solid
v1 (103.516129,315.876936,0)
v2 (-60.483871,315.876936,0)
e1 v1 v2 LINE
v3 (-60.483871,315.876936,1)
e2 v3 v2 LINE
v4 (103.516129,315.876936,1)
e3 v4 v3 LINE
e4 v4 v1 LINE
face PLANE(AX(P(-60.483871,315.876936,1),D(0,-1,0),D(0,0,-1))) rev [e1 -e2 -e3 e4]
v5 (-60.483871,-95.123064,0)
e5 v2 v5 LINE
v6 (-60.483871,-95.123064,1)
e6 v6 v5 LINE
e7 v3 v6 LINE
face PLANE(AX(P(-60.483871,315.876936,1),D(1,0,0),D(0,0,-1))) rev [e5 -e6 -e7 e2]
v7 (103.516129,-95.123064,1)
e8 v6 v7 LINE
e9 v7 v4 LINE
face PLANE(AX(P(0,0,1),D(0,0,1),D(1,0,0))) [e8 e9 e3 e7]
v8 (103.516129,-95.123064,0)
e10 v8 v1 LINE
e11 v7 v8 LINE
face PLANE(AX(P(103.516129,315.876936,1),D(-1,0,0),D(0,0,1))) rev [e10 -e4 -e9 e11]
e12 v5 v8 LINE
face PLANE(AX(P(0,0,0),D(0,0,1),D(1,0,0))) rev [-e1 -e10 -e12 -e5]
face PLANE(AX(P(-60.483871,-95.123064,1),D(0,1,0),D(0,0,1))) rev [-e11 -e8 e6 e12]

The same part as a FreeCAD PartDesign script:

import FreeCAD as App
import Part
import Sketcher
from FreeCAD import Vector

doc = App.newDocument("Part")
body = doc.addObject("PartDesign::Body", "Body")

sketch1 = doc.addObject("Sketcher::SketchObject", "Sketch")
body.addObject(sketch1)
sketch1.AttachmentSupport = (doc.XY_Plane, [""])
sketch1.MapMode = "FlatFace"
sketch1.addGeometry([
    Part.LineSegment(Vector(-60, 316, 0), Vector(-60, -95, 0)),
    Part.LineSegment(Vector(-60, -95, 0), Vector(104, -95, 0)),
    Part.LineSegment(Vector(104, -95, 0), Vector(104, 316, 0)),
    Part.LineSegment(Vector(104, 316, 0), Vector(-60, 316, 0)),
], False)
sketch1.addConstraint([
    Sketcher.Constraint("Coincident", 0, 2, 1, 1),
    Sketcher.Constraint("Coincident", 1, 2, 2, 1),
    Sketcher.Constraint("Coincident", 2, 2, 3, 1),
    Sketcher.Constraint("Coincident", 3, 2, 0, 1),
    Sketcher.Constraint("Vertical", 0),
    Sketcher.Constraint("Horizontal", 1),
    Sketcher.Constraint("Vertical", 2),
    Sketcher.Constraint("Horizontal", 3),
    Sketcher.Constraint("DistanceX", 1, 1, 1, 2, 164.0),
    Sketcher.Constraint("DistanceY", 0, 2, 0, 1, 411.0),
    Sketcher.Constraint("DistanceX", 0, 2, -1, 1, 60.483871),
    Sketcher.Constraint("DistanceY", 0, 2, -1, 1, 95.123064),
])
pad1 = doc.addObject("PartDesign::Pad", "Pad")
body.addObject(pad1)
pad1.Profile = sketch1
pad1.Length = 1

doc.recompute()
